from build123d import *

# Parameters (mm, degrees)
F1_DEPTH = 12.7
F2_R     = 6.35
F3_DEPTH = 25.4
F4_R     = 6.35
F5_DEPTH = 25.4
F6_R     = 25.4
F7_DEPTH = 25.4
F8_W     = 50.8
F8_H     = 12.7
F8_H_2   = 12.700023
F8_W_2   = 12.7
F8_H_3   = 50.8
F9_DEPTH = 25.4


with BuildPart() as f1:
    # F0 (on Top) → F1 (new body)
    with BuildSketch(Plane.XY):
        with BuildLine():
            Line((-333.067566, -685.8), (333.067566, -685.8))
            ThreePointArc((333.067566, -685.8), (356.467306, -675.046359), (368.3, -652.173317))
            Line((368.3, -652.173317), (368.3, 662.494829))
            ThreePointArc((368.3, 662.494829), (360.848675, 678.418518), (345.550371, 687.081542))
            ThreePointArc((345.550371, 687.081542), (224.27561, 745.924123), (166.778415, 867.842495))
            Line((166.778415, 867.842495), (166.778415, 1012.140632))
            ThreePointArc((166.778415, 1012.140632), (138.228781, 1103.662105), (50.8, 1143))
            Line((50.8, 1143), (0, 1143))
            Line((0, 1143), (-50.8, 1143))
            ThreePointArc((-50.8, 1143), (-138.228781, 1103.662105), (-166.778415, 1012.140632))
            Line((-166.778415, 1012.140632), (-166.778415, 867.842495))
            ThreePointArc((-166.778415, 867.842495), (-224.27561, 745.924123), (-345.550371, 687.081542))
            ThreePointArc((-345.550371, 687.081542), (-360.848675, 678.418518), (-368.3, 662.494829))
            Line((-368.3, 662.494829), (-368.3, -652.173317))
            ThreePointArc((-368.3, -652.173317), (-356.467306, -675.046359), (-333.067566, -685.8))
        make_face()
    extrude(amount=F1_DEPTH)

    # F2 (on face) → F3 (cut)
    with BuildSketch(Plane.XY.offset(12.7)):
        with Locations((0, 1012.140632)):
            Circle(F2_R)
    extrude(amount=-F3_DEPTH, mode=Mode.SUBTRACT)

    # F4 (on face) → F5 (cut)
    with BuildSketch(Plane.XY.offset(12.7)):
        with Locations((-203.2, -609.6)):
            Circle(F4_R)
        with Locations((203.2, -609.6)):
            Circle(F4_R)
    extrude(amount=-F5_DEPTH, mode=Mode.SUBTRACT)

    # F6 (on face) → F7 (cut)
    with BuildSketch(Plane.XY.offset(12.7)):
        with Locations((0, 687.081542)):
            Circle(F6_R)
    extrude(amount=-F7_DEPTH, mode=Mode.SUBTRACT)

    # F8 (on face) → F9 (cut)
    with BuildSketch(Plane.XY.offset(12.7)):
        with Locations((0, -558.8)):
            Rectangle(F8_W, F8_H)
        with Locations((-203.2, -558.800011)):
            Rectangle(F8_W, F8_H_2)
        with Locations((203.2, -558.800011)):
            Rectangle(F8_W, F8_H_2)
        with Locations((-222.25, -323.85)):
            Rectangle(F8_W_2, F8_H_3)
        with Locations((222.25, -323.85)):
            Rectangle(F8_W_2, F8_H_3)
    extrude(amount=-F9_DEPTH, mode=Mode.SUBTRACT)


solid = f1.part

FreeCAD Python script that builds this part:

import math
import FreeCAD as App
import Part
import Sketcher
Q = App.Units.Quantity


def add_polygon(sketch, points):
    """Adds a closed chain of lines whose ends are joined by coincident constraints."""
    first, n = sketch.GeometryCount, len(points)
    for a, b in zip(points, points[1:] + points[:1]):
        sketch.addGeometry(Part.LineSegment(App.Vector(*a, 0), App.Vector(*b, 0)), False)
    for i in range(n):
        sketch.addConstraint(Sketcher.Constraint("Coincident", first + i, 2, first + (i + 1) % n, 1))

doc = App.newDocument("Part")
params = doc.addObject("Spreadsheet::Sheet", "Params")
for row, (alias, value) in enumerate([
    ("sketch1_width", "4 in"),
    ("pad1_length", "0.5 in"),
    ("sketch2_diameter", "0.5 in"),
    ("pocket1_length", "1 in"),
    ("sketch3_diameter", "0.5 in"),
    ("pocket2_length", "1 in"),
    ("sketch4_diameter", "2 in"),
    ("pocket3_length", "1 in"),
    ("sketch5_width", "2 in"),
    ("sketch5_width2", "0.5 in"),
    ("pocket4_length", "1 in"),
], start=1):
    params.set(f"A{row}", alias)
    params.set(f"B{row}", "=" + value)
    params.setAlias(f"B{row}", alias)

body = doc.addObject("PartDesign::Body", "Body")

# Sketch on XY plane
sketch1 = body.newObject("Sketcher::SketchObject", "Sketch")
sketch1.AttachmentSupport = (doc.getObject("XY_Plane"), [""])
sketch1.MapMode = "FlatFace"
sketch1.addGeometry([
    Part.LineSegment(App.Vector(-333, -686, 0), App.Vector(333, -686, 0)),  # 0
    Part.ArcOfCircle(Part.Circle(App.Vector(329, -646, 0), App.Vector(0, 0, 1), 40), math.radians(-84), math.radians(-8)),  # 1
    Part.LineSegment(App.Vector(368, -652, 0), App.Vector(368, 662, 0)),  # 2
    Part.ArcOfCircle(Part.Circle(App.Vector(340, 659, 0), App.Vector(0, 0, 1), 29), math.radians(7), math.radians(78)),  # 3
    Part.ArcOfCircle(Part.Circle(App.Vector(368, 888, 0), App.Vector(0, 0, 1), 203), math.radians(-174), math.radians(-96)),  # 4
    Part.LineSegment(App.Vector(167, 868, 0), App.Vector(167, 1012, 0)),  # 5
    Part.ArcOfCircle(Part.Circle(App.Vector(51, 1026, 0), App.Vector(0, 0, 1), 117), math.radians(-7), math.radians(90)),  # 6
    Part.LineSegment(App.Vector(51, 1143, 0), App.Vector(-51, 1143, 0)),  # 7
    Part.ArcOfCircle(Part.Circle(App.Vector(-51, 1026, 0), App.Vector(0, 0, 1), 117), math.radians(90), math.radians(187)),  # 8
    Part.LineSegment(App.Vector(-167, 1012, 0), App.Vector(-167, 868, 0)),  # 9
    Part.ArcOfCircle(Part.Circle(App.Vector(-368, 888, 0), App.Vector(0, 0, 1), 203), math.radians(-84), math.radians(-6)),  # 10
    Part.ArcOfCircle(Part.Circle(App.Vector(-340, 659, 0), App.Vector(0, 0, 1), 29), math.radians(102), math.radians(173)),  # 11
    Part.LineSegment(App.Vector(-368, 662, 0), App.Vector(-368, -652, 0)),  # 12
    Part.ArcOfCircle(Part.Circle(App.Vector(-329, -646, 0), App.Vector(0, 0, 1), 40), math.radians(-172), math.radians(-96)),  # 13
], False)
sketch1.addConstraint([
    Sketcher.Constraint("Coincident", 0, 2, 1, 1),
    Sketcher.Constraint("Coincident", 1, 2, 2, 1),
    Sketcher.Constraint("Coincident", 2, 2, 3, 1),
    Sketcher.Constraint("Coincident", 3, 2, 4, 2),
    Sketcher.Constraint("Coincident", 4, 1, 5, 1),
    Sketcher.Constraint("Coincident", 5, 2, 6, 1),
    Sketcher.Constraint("Tangent", 6, 2, 7, 1),
    Sketcher.Constraint("Tangent", 7, 2, 8, 1),
    Sketcher.Constraint("Coincident", 8, 2, 9, 1),
    Sketcher.Constraint("Coincident", 9, 2, 10, 2),
    Sketcher.Constraint("Coincident", 10, 1, 11, 1),
    Sketcher.Constraint("Coincident", 11, 2, 12, 1),
    Sketcher.Constraint("Coincident", 12, 2, 13, 1),
    Sketcher.Constraint("Coincident", 13, 2, 0, 1),
    Sketcher.Constraint("Horizontal", 0),
    Sketcher.Constraint("Vertical", 2),
    Sketcher.Constraint("Vertical", 5),
    Sketcher.Constraint("Horizontal", 7),
    Sketcher.Constraint("Vertical", 9),
    Sketcher.Constraint("Vertical", 12),
    Sketcher.Constraint("Equal", 6, 8),
    Sketcher.Constraint("Equal", 4, 10),
    Sketcher.Constraint("Equal", 3, 11),
    Sketcher.Constraint("Equal", 1, 13),
    Sketcher.Constraint("Symmetric", 4, 3, 10, 3, -2),
    Sketcher.Constraint("Symmetric", 3, 3, 11, 3, -2),
    Sketcher.Constraint("Symmetric", 1, 3, 13, 3, -2),
    Sketcher.Constraint("Symmetric", 5, 2, 8, 2, -2),
    Sketcher.Constraint("Horizontal", 2, 2, 11, 2),
    Sketcher.Constraint("Vertical", 4, 3, 1, 2),
    Sketcher.Constraint("DistanceX", 7, 2, 7, 1, Q("4 in")),
    Sketcher.Constraint("DistanceY", 0, 2, -1, 1, Q("27 in")),
    Sketcher.Constraint("DistanceY", -1, 1, 6, 2, Q("45 in")),
    Sketcher.Constraint("DistanceX", 10, 3, 4, 3, Q("29 in")),
    Sketcher.Constraint("Radius", 3, 28.91152),
    Sketcher.Constraint("Radius", 1, 39.585316),
    Sketcher.Constraint("Radius", 4, 202.563746),
    Sketcher.Constraint("Radius", 6, 116.824525),
    Sketcher.Constraint("DistanceX", 0, 1, 0, 2, 666.135132),
    Sketcher.Constraint("DistanceY", 2, 1, 2, 2, 1314.668146),
    Sketcher.Constraint("DistanceY", 5, 1, 5, 2, 144.298137),
    Sketcher.Constraint("DistanceX", -1, 1, 3, 3, 339.627722),
    Sketcher.Constraint("DistanceY", -1, 1, 2, 2, 662.494829),
    Sketcher.Constraint("DistanceX", -1, 1, 3, 2, 345.550371),
])
sketch1.setExpression("Constraints[30]", "Params.sketch1_width")
pad1 = body.newObject("PartDesign::Pad", "Pad")
pad1.Profile = sketch1
pad1.setExpression("Length", "Params.pad1_length")

# Sketch on XY plane
sketch2 = body.newObject("Sketcher::SketchObject", "Sketch001")
sketch2.AttachmentSupport = (doc.getObject("XY_Plane"), [""])
sketch2.MapMode = "FlatFace"
sketch2.AttachmentOffset = App.Placement(App.Vector(0, 0, 0.5 * 25.4), App.Rotation())
sketch2.addGeometry(Part.Circle(App.Vector(0, 1012, 0), App.Vector(0, 0, 1), 6), False)
sketch2.addConstraint([
    Sketcher.Constraint("PointOnObject", 0, 3, -2),
    Sketcher.Constraint("Diameter", 0, Q("0.5 in")),
    Sketcher.Constraint("DistanceY", -1, 1, 0, 3, 1012.140632),
])
sketch2.setExpression("Constraints[1]", "Params.sketch2_diameter")
pocket1 = body.newObject("PartDesign::Pocket", "Pocket")
pocket1.Profile = sketch2
pocket1.setExpression("Length", "Params.pocket1_length")

# Sketch on XY plane
sketch3 = body.newObject("Sketcher::SketchObject", "Sketch002")
sketch3.AttachmentSupport = (doc.getObject("XY_Plane"), [""])
sketch3.MapMode = "FlatFace"
sketch3.AttachmentOffset = App.Placement(App.Vector(0, 0, 0.5 * 25.4), App.Rotation())
sketch3.addGeometry([
    Part.Circle(App.Vector(-203, -610, 0), App.Vector(0, 0, 1), 6),
    Part.Circle(App.Vector(203, -610, 0), App.Vector(0, 0, 1), 6),
], False)
sketch3.addConstraint([
    Sketcher.Constraint("Equal", 0, 1),
    Sketcher.Constraint("Symmetric", 0, 3, 1, 3, -2),
    Sketcher.Constraint("Diameter", 0, Q("0.5 in")),
    Sketcher.Constraint("DistanceX", 0, 3, -1, 1, Q("8 in")),
    Sketcher.Constraint("DistanceY", 0, 3, -1, 1, Q("24 in")),
])
sketch3.setExpression("Constraints[2]", "Params.sketch3_diameter")
pocket2 = body.newObject("PartDesign::Pocket", "Pocket001")
pocket2.Profile = sketch3
pocket2.setExpression("Length", "Params.pocket2_length")

# Sketch on XY plane
sketch4 = body.newObject("Sketcher::SketchObject", "Sketch003")
sketch4.AttachmentSupport = (doc.getObject("XY_Plane"), [""])
sketch4.MapMode = "FlatFace"
sketch4.AttachmentOffset = App.Placement(App.Vector(0, 0, 0.5 * 25.4), App.Rotation())
sketch4.addGeometry(Part.Circle(App.Vector(0, 687, 0), App.Vector(0, 0, 1), 25), False)
sketch4.addConstraint([
    Sketcher.Constraint("PointOnObject", 0, 3, -2),
    Sketcher.Constraint("Diameter", 0, Q("2 in")),
    Sketcher.Constraint("DistanceY", -1, 1, 0, 3, 687.081542),
])
sketch4.setExpression("Constraints[1]", "Params.sketch4_diameter")
pocket3 = body.newObject("PartDesign::Pocket", "Pocket002")
pocket3.Profile = sketch4
pocket3.setExpression("Length", "Params.pocket3_length")

# Sketch on XY plane
sketch5 = body.newObject("Sketcher::SketchObject", "Sketch004")
sketch5.AttachmentSupport = (doc.getObject("XY_Plane"), [""])
sketch5.MapMode = "FlatFace"
sketch5.AttachmentOffset = App.Placement(App.Vector(0, 0, 0.5 * 25.4), App.Rotation())
add_polygon(sketch5, [(-25, -552), (-25, -565), (25, -565), (25, -552)])  # lines 0-3
add_polygon(sketch5, [(-229, -552), (-229, -565), (-178, -565), (-178, -552)])  # lines 4-7
add_polygon(sketch5, [(178, -552), (178, -565), (229, -565), (229, -552)])  # lines 8-11
add_polygon(sketch5, [(-229, -298), (-229, -349), (-216, -349), (-216, -298)])  # lines 12-15
add_polygon(sketch5, [(216, -298), (216, -349), (229, -349), (229, -298)])  # lines 16-19
sketch5.addConstraint([
    Sketcher.Constraint("Vertical", 0),
    Sketcher.Constraint("Horizontal", 1),
    Sketcher.Constraint("Vertical", 2),
    Sketcher.Constraint("Horizontal", 3),
    Sketcher.Constraint("Vertical", 4),
    Sketcher.Constraint("Horizontal", 5),
    Sketcher.Constraint("Vertical", 6),
    Sketcher.Constraint("Horizontal", 7),
    Sketcher.Constraint("Vertical", 8),
    Sketcher.Constraint("Horizontal", 9),
    Sketcher.Constraint("Vertical", 10),
    Sketcher.Constraint("Horizontal", 11),
    Sketcher.Constraint("Vertical", 12),
    Sketcher.Constraint("Horizontal", 13),
    Sketcher.Constraint("Vertical", 14),
    Sketcher.Constraint("Horizontal", 15),
    Sketcher.Constraint("Vertical", 16),
    Sketcher.Constraint("Horizontal", 17),
    Sketcher.Constraint("Vertical", 18),
    Sketcher.Constraint("Horizontal", 19),
    Sketcher.Constraint("Symmetric", 5, 2, 8, 2, -2),
    Sketcher.Constraint("Symmetric", 7, 2, 10, 2, -2),
    Sketcher.Constraint("Symmetric", 13, 2, 16, 2, -2),
    Sketcher.Constraint("Symmetric", 15, 2, 18, 2, -2),
    Sketcher.Constraint("Horizontal", 3, 2, 6, 2),
    Sketcher.Constraint("Vertical", 7, 2, 12, 2),
    Sketcher.Constraint("Equal", 3, 5),
    Sketcher.Constraint("Equal", 19, 0),
    Sketcher.Constraint("Equal", 11, 12),
    Sketcher.Constraint("DistanceX", 1, 1, 1, 2, Q("2 in")),
    Sketcher.Constraint("DistanceX", 13, 1, 13, 2, Q("0.5 in")),
    Sketcher.Constraint("DistanceX", 0, 2, -1, 1, Q("1 in")),
    Sketcher.Constraint("DistanceX", 4, 2, -1, 1, Q("9 in")),
    Sketcher.Constraint("DistanceY", 7, 2, 12, 2, Q("8 in")),
    Sketcher.Constraint("DistanceY", 0, 2, -1, 1, Q("22.25 in")),
    Sketcher.Constraint("DistanceY", 4, 2, 4, 1, 12.700023),
])
sketch5.setExpression("Constraints[49]", "Params.sketch5_width")
sketch5.setExpression("Constraints[50]", "Params.sketch5_width2")
pocket4 = body.newObject("PartDesign::Pocket", "Pocket003")
pocket4.Profile = sketch5
pocket4.setExpression("Length", "Params.pocket4_length")

doc.recompute()
